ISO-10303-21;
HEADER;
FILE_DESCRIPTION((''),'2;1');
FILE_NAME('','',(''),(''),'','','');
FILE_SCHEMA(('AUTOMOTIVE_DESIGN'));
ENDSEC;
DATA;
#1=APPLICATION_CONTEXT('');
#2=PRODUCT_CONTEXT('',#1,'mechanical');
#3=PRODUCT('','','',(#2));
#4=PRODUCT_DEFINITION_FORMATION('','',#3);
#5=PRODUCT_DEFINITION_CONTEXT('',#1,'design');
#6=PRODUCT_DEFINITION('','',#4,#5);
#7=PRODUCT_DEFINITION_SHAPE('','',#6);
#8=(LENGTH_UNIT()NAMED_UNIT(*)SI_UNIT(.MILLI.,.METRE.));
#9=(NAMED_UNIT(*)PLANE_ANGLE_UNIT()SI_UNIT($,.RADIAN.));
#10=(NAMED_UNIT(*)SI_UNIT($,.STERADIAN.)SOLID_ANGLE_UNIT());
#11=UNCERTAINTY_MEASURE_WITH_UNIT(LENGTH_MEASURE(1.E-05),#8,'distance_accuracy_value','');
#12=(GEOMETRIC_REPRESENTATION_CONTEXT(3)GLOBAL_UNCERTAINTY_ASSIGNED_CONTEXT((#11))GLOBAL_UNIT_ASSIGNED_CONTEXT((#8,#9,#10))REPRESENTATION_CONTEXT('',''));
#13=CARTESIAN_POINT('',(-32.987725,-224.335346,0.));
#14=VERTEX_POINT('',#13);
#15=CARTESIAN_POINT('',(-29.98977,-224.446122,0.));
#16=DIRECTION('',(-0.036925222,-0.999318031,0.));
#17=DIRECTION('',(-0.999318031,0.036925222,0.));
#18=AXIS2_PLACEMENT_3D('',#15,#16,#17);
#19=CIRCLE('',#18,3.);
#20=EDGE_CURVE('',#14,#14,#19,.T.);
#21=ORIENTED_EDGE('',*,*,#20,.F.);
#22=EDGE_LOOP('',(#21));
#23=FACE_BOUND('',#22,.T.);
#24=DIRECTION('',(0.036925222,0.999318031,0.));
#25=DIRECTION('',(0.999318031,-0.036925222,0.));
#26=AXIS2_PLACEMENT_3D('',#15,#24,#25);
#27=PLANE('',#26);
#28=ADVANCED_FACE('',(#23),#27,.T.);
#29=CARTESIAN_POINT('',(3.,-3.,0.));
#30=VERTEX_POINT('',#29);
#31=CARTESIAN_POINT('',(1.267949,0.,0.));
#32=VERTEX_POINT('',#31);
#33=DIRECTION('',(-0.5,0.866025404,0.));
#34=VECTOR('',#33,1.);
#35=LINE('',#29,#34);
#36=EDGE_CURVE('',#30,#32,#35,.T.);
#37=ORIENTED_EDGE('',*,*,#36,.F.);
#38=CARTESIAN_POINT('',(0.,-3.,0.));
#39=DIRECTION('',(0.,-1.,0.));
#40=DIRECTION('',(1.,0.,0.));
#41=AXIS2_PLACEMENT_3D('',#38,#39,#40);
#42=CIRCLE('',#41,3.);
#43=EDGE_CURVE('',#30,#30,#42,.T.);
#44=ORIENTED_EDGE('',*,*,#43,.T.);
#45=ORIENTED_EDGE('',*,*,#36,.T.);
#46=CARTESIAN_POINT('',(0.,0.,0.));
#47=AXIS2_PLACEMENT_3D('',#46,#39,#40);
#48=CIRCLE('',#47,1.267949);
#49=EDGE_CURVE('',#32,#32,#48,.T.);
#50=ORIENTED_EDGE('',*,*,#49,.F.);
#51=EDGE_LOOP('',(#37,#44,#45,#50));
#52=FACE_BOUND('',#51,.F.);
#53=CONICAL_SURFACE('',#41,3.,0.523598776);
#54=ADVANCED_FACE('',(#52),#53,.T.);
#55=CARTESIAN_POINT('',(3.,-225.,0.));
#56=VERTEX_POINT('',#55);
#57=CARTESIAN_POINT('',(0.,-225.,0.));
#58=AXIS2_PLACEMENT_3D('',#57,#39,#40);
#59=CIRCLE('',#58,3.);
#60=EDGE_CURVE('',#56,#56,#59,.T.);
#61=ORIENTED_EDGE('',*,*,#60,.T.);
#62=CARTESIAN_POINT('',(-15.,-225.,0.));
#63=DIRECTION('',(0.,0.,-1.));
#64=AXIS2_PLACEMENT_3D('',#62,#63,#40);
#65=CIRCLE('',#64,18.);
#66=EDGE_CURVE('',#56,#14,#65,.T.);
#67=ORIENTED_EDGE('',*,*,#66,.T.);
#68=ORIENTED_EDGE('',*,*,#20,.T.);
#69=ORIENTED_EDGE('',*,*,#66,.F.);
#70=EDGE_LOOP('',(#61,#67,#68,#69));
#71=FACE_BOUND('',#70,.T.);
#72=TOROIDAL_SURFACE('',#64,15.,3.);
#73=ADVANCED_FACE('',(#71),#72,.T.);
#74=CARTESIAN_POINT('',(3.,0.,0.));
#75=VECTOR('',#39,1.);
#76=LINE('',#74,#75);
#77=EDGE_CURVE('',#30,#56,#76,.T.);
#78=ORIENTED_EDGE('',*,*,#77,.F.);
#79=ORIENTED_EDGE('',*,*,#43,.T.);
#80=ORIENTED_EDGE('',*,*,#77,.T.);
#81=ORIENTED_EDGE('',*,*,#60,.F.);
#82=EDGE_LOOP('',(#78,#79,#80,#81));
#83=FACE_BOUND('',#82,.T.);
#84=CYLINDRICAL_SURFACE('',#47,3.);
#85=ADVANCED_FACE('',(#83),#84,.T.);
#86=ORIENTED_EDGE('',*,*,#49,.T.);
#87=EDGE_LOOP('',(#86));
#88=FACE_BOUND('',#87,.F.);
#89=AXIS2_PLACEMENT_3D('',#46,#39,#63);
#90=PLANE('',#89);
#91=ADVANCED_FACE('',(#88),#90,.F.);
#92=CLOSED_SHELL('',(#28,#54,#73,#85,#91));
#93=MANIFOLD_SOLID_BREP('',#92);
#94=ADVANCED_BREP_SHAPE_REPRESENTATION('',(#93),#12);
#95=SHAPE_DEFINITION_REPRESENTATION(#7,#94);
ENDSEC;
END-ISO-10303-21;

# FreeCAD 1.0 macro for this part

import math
import FreeCAD as App
import Part
import Sketcher

V = App.Vector


def edges_at(feature, points):
    """Names of the edges that pass closest to the given points."""
    edges = feature.Shape.Edges
    near = lambda p: min(range(len(edges)), key=lambda i: edges[i].distToShape(Part.Vertex(*p))[0])
    return sorted({f"Edge{near(p) + 1}" for p in points})

doc = App.newDocument("Part")
body = doc.addObject("PartDesign::Body", "Body")

sketch1 = body.newObject("Sketcher::SketchObject", "Sketch")
sketch1.AttachmentSupport = (doc.getObject("XZ_Plane"), [""])
sketch1.MapMode = "FlatFace"
sketch1.addGeometry(Part.Circle(V(0, 0, 0), V(0, 0, 1), 3), False)
sketch1.addConstraint([
    Sketcher.Constraint("Coincident", 0, 3, -1, 1),
    Sketcher.Constraint("Diameter", 0, 6.0),
])

sketch2 = body.newObject("Sketcher::SketchObject", "Sketch001")
sketch2.AttachmentSupport = (doc.getObject("XY_Plane"), [""])
sketch2.MapMode = "FlatFace"
sketch2.addGeometry([
    Part.LineSegment(V(0, 0, 0), V(0, -225, 0)),
    Part.ArcOfCircle(Part.Circle(V(-15, -225, 0), V(0, 0, 1), 15), math.radians(178), math.radians(360)),
], False)
sketch2.addConstraint([
    Sketcher.Constraint("Tangent", 0, 2, 1, 2),
    Sketcher.Constraint("Vertical", 0),
    Sketcher.Constraint("Coincident", 0, 1, -1, 1),
    Sketcher.Constraint("Radius", 1, 15.0),
    Sketcher.Constraint("DistanceY", 0, 2, 0, 1, 225.0),
    Sketcher.Constraint("DistanceX", 1, 1, -1, 1, 29.98977),
])
doc.recompute()

additivepipe = body.newObject("PartDesign::AdditivePipe", "AdditivePipe")
additivepipe.Profile = sketch1
additivepipe.Spine = (sketch2, ["Edge1", "Edge2"])
doc.recompute()

chamfer = body.newObject("PartDesign::Chamfer", "Chamfer")
chamfer.Base = (additivepipe, edges_at(additivepipe, [(-3, 0, 0)]))
chamfer.ChamferType = "Two distances"
chamfer.Size = 3
chamfer.Size2 = 1.732051
chamfer.FlipDirection = True

doc.recompute()
